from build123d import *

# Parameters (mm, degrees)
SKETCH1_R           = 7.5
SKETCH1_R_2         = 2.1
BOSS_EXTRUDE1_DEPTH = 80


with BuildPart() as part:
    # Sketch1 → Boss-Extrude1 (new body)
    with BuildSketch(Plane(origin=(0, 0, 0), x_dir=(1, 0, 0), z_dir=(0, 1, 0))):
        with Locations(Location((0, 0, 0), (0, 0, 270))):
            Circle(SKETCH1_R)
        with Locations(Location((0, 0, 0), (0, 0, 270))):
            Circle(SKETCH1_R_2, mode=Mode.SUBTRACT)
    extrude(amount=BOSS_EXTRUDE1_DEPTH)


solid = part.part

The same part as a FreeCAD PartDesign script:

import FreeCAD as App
import Part
import Sketcher

V = App.Vector
Q = App.Units.Quantity

doc = App.newDocument("Part")
params = doc.addObject("Spreadsheet::Sheet", "Params")
for row, (alias, value) in enumerate([
    ("sketch1_diameter", "15 mm"),
    ("sketch1_diameter2", "4.2 mm"),
    ("pad1_length", "80 mm"),
], start=1):
    params.set(f"A{row}", alias)
    params.set(f"B{row}", "=" + value)
    params.setAlias(f"B{row}", alias)

body = doc.addObject("PartDesign::Body", "Body")

# Sketch on XZ plane
sketch1 = body.newObject("Sketcher::SketchObject", "Sketch")
sketch1.AttachmentSupport = (doc.getObject("XZ_Plane"), [""])
sketch1.MapMode = "FlatFace"
sketch1.addGeometry([
    Part.Circle(V(0, 0, 0), V(0, 0, 1), 7.5),
    Part.Circle(V(0, 0, 0), V(0, 0, 1), 2.1),
], False)
sketch1.addConstraint([
    Sketcher.Constraint("Coincident", 0, 3, -1, 1),
    Sketcher.Constraint("Coincident", 1, 3, -1, 1),
    Sketcher.Constraint("Diameter", 0, Q("15 mm")),
    Sketcher.Constraint("Diameter", 1, Q("4.2 mm")),
])
sketch1.setExpression("Constraints[2]", "Params.sketch1_diameter")
sketch1.setExpression("Constraints[3]", "Params.sketch1_diameter2")
pad1 = body.newObject("PartDesign::Pad", "Pad")
pad1.Profile = sketch1
pad1.setExpression("Length", "Params.pad1_length")
pad1.Reversed = True

doc.recompute()
